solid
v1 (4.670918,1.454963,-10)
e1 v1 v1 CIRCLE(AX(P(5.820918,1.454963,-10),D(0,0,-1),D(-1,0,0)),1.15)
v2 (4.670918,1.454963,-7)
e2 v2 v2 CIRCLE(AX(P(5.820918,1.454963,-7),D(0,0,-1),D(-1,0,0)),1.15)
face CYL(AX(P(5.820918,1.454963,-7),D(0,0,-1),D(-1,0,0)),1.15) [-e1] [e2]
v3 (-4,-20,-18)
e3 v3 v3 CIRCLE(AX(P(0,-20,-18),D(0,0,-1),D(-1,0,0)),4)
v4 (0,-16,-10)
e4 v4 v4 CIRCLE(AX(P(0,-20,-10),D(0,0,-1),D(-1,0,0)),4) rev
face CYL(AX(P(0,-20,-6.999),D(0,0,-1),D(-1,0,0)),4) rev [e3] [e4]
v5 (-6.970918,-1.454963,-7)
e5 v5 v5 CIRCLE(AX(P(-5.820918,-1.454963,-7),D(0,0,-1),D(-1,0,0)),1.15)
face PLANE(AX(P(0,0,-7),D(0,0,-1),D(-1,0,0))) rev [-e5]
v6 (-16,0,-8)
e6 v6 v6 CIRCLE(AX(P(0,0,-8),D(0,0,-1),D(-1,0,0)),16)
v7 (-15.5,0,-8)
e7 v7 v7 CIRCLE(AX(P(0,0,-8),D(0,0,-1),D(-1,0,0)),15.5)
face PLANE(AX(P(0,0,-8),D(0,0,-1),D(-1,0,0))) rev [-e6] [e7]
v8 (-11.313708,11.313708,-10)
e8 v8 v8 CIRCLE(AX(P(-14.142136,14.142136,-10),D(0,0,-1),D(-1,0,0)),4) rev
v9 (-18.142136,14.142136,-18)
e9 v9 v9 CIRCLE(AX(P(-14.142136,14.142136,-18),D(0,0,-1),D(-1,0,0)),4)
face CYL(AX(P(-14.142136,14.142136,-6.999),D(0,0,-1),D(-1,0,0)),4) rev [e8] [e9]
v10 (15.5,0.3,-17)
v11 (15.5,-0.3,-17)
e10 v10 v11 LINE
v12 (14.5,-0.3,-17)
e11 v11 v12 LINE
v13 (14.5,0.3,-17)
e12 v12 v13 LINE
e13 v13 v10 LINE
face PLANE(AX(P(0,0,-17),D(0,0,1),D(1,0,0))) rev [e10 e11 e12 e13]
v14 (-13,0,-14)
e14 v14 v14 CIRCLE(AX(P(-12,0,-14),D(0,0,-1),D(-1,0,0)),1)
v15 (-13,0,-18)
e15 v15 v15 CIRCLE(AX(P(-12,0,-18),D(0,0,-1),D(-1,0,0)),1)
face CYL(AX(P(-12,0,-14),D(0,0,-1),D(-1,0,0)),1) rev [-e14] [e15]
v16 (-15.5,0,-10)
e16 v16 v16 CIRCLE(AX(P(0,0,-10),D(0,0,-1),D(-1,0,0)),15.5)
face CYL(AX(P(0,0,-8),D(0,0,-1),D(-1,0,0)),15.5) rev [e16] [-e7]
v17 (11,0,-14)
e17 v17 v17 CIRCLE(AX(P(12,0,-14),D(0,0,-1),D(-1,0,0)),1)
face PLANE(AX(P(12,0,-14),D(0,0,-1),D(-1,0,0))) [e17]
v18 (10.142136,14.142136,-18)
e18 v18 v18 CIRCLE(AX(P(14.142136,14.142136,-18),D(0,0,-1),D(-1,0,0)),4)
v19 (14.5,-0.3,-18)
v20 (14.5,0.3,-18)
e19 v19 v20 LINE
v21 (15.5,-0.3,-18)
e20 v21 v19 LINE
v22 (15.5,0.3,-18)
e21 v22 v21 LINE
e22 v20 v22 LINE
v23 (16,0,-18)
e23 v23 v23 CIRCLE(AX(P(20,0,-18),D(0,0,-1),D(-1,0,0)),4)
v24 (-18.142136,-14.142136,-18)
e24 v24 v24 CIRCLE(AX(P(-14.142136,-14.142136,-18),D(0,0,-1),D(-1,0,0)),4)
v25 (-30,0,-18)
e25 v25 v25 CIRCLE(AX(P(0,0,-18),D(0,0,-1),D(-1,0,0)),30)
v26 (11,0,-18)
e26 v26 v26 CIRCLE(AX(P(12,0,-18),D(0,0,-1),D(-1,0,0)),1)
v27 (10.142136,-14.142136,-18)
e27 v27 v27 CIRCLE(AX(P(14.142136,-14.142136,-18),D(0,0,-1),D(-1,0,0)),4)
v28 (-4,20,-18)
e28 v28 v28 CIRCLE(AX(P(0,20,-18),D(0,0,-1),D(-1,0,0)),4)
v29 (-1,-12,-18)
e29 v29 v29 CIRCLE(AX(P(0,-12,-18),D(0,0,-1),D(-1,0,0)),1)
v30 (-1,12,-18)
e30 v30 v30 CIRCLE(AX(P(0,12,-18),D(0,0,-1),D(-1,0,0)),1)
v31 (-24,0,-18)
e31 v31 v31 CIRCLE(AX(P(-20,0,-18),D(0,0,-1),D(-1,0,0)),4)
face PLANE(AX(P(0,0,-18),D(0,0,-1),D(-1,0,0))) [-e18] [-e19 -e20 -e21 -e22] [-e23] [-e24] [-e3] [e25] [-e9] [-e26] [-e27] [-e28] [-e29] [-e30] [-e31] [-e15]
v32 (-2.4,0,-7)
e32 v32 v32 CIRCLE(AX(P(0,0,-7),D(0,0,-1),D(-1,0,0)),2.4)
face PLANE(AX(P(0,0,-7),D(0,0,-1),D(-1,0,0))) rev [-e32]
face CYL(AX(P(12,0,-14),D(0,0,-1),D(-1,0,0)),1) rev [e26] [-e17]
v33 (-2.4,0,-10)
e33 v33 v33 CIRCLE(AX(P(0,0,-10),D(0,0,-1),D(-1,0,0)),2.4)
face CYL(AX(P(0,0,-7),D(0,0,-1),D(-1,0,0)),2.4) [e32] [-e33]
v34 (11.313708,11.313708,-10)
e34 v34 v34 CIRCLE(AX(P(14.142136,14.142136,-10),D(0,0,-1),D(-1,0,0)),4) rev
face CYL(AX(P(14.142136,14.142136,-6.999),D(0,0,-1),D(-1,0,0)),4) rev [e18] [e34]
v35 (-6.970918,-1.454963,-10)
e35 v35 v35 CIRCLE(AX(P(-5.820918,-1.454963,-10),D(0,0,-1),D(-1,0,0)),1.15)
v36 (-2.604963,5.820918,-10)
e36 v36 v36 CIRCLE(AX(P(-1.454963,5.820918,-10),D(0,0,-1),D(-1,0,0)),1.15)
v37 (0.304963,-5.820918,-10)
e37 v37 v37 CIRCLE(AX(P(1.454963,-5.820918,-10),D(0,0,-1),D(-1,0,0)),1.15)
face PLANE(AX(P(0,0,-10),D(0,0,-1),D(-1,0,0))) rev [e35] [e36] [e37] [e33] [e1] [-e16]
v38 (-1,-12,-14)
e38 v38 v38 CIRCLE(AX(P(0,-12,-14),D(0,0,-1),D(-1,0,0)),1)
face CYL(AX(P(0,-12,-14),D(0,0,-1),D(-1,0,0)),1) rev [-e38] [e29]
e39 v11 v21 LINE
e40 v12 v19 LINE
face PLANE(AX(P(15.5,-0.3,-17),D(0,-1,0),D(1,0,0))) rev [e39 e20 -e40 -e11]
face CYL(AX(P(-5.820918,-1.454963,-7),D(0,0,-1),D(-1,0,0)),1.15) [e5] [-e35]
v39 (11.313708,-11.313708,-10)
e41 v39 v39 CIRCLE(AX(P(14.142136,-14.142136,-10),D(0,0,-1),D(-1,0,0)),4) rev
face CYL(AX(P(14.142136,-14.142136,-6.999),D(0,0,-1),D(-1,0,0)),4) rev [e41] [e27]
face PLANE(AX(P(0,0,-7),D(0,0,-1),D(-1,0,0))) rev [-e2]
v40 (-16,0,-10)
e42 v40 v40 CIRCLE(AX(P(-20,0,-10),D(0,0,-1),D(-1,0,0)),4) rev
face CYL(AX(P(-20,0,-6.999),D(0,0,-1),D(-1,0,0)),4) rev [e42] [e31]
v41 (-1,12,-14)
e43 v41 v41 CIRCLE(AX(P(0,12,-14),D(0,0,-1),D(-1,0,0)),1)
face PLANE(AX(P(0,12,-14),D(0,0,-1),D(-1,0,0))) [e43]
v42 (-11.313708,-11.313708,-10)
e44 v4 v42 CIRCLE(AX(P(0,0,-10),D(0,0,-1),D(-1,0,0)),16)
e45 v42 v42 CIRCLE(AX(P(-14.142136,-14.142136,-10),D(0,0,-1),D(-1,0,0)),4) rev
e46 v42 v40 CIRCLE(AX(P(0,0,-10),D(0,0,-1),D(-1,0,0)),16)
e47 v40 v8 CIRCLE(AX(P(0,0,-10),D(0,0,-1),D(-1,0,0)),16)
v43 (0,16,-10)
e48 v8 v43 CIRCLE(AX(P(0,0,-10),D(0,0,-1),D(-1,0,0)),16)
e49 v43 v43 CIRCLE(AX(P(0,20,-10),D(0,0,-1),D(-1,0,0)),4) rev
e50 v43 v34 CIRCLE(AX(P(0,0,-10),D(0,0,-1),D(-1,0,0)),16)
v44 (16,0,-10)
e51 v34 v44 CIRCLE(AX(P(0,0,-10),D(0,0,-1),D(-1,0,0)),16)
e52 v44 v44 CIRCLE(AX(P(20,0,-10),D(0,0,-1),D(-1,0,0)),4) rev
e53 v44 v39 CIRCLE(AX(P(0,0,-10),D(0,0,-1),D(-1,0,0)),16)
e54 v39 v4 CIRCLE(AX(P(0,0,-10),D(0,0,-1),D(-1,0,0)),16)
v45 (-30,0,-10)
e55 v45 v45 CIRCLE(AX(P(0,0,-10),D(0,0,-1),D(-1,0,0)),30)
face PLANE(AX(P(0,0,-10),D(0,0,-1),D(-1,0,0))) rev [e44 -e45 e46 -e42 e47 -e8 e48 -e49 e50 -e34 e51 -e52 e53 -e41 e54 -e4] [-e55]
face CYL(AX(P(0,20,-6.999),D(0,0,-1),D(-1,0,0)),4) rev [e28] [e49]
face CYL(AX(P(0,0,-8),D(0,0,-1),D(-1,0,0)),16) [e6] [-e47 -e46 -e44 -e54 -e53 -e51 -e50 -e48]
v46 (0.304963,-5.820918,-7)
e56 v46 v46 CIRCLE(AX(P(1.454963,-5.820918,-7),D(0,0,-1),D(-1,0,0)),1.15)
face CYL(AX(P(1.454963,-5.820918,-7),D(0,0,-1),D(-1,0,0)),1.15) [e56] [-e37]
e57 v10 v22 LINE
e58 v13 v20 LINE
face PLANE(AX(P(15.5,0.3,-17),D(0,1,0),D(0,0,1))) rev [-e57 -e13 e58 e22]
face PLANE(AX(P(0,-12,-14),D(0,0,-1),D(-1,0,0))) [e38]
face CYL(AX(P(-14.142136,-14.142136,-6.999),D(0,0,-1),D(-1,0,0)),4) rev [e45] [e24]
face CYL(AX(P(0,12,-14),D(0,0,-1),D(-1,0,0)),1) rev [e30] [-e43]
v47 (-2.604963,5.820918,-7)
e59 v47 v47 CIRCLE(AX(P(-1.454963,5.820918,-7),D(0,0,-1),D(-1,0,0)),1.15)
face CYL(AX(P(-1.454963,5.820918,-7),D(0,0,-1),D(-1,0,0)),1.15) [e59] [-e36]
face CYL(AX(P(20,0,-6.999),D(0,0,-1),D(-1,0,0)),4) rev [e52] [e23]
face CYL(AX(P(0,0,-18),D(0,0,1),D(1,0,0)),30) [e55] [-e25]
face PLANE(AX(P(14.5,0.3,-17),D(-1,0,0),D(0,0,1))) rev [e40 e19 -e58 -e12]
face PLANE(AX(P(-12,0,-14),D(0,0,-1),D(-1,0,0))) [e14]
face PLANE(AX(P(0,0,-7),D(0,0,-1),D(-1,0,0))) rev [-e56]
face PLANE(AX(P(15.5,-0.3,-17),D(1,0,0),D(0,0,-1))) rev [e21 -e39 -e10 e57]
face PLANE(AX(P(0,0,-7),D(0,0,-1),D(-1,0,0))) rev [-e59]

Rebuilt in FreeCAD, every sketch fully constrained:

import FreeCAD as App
import Part
import Sketcher

V = App.Vector
Q = App.Units.Quantity


def add_polygon(sketch, points):
    """Adds a closed chain of lines whose ends are joined by coincident constraints."""
    first, n = sketch.GeometryCount, len(points)
    for a, b in zip(points, points[1:] + points[:1]):
        sketch.addGeometry(Part.LineSegment(App.Vector(*a, 0), App.Vector(*b, 0)), False)
    for i in range(n):
        sketch.addConstraint(Sketcher.Constraint("Coincident", first + i, 2, first + (i + 1) % n, 1))

doc = App.newDocument("Part")
body = doc.addObject("PartDesign::Body", "Body")

# Sketch on XY plane
sketch1 = doc.addObject("Sketcher::SketchObject", "Sketch")
body.addObject(sketch1)
sketch1.AttachmentSupport = (doc.XY_Plane, [""])
sketch1.MapMode = "FlatFace"
sketch1.AttachmentOffset = App.Placement(V(0, 0, -10), App.Rotation())
sketch1.addGeometry(Part.Circle(V(0, 0, 0), V(0, 0, 1), 2.4), False)
sketch1.addConstraint([
    Sketcher.Constraint("Coincident", 0, 3, -1, 1),
    Sketcher.Constraint("Diameter", 0, Q("4.8 mm")),
])
pad1 = doc.addObject("PartDesign::Pad", "Pad")
body.addObject(pad1)
pad1.Profile = sketch1
pad1.Length = 3
body2 = doc.addObject("PartDesign::Body", "Body001")

# Sketch on XY plane
sketch2 = doc.addObject("Sketcher::SketchObject", "Sketch001")
body2.addObject(sketch2)
sketch2.AttachmentSupport = (doc.getObject("XY_Plane001"), [""])
sketch2.MapMode = "FlatFace"
sketch2.AttachmentOffset = App.Placement(V(0, 0, -10), App.Rotation())
sketch2.addGeometry(Part.Circle(V(-5.820918, -1.454963, 0), V(0, 0, 1), 1.15), False)
sketch2.addConstraint([
    Sketcher.Constraint("Diameter", 0, Q("2.3 mm")),
    Sketcher.Constraint("DistanceX", 0, 3, -1, 1, Q("5.820918 mm")),
    Sketcher.Constraint("DistanceY", 0, 3, -1, 1, Q("1.454963 mm")),
])
pad2 = doc.addObject("PartDesign::Pad", "Pad001")
body2.addObject(pad2)
pad2.Profile = sketch2
pad2.Length = 3
body3 = doc.addObject("PartDesign::Body", "Body002")

# Sketch on XY plane
sketch3 = doc.addObject("Sketcher::SketchObject", "Sketch002")
body3.addObject(sketch3)
sketch3.AttachmentSupport = (doc.getObject("XY_Plane002"), [""])
sketch3.MapMode = "FlatFace"
sketch3.AttachmentOffset = App.Placement(V(0, 0, -10), App.Rotation())
sketch3.addGeometry(Part.Circle(V(1.454963, -5.820918, 0), V(0, 0, 1), 1.15), False)
sketch3.addConstraint([
    Sketcher.Constraint("Diameter", 0, Q("2.3 mm")),
    Sketcher.Constraint("DistanceX", -1, 1, 0, 3, Q("1.454963 mm")),
    Sketcher.Constraint("DistanceY", 0, 3, -1, 1, Q("5.820918 mm")),
])
pad3 = doc.addObject("PartDesign::Pad", "Pad002")
body3.addObject(pad3)
pad3.Profile = sketch3
pad3.Length = 3
body4 = doc.addObject("PartDesign::Body", "Body003")

# Sketch on XY plane
sketch4 = doc.addObject("Sketcher::SketchObject", "Sketch003")
body4.addObject(sketch4)
sketch4.AttachmentSupport = (doc.getObject("XY_Plane003"), [""])
sketch4.MapMode = "FlatFace"
sketch4.AttachmentOffset = App.Placement(V(0, 0, -10), App.Rotation())
sketch4.addGeometry(Part.Circle(V(5.820918, 1.454963, 0), V(0, 0, 1), 1.15), False)
sketch4.addConstraint([
    Sketcher.Constraint("Diameter", 0, Q("2.3 mm")),
    Sketcher.Constraint("DistanceX", -1, 1, 0, 3, Q("5.820918 mm")),
    Sketcher.Constraint("DistanceY", -1, 1, 0, 3, Q("1.454963 mm")),
])
pad4 = doc.addObject("PartDesign::Pad", "Pad003")
body4.addObject(pad4)
pad4.Profile = sketch4
pad4.Length = 3
body5 = doc.addObject("PartDesign::Body", "Body004")

# Sketch on XY plane
sketch5 = doc.addObject("Sketcher::SketchObject", "Sketch004")
body5.addObject(sketch5)
sketch5.AttachmentSupport = (doc.getObject("XY_Plane004"), [""])
sketch5.MapMode = "FlatFace"
sketch5.AttachmentOffset = App.Placement(V(0, 0, -10), App.Rotation())
sketch5.addGeometry(Part.Circle(V(-1.454963, 5.820918, 0), V(0, 0, 1), 1.15), False)
sketch5.addConstraint([
    Sketcher.Constraint("Diameter", 0, Q("2.3 mm")),
    Sketcher.Constraint("DistanceX", 0, 3, -1, 1, Q("1.454963 mm")),
    Sketcher.Constraint("DistanceY", -1, 1, 0, 3, Q("5.820918 mm")),
])
pad5 = doc.addObject("PartDesign::Pad", "Pad004")
body5.addObject(pad5)
pad5.Profile = sketch5
pad5.Length = 3
body6 = doc.addObject("PartDesign::Body", "Body005")

# Sketch on XY plane
sketch6 = doc.addObject("Sketcher::SketchObject", "Sketch005")
body6.addObject(sketch6)
sketch6.AttachmentSupport = (doc.getObject("XY_Plane005"), [""])
sketch6.MapMode = "FlatFace"
sketch6.AttachmentOffset = App.Placement(V(0, 0, -10), App.Rotation())
sketch6.addGeometry([
    Part.Circle(V(0, 0, 0), V(0, 0, 1), 16),
    Part.Circle(V(0, 0, 0), V(0, 0, 1), 15.5),
], False)
sketch6.addConstraint([
    Sketcher.Constraint("Coincident", 0, 3, -1, 1),
    Sketcher.Constraint("Coincident", 1, 3, -1, 1),
    Sketcher.Constraint("Diameter", 0, Q("32 mm")),
    Sketcher.Constraint("Diameter", 1, Q("31 mm")),
])
pad6 = doc.addObject("PartDesign::Pad", "Pad005")
body6.addObject(pad6)
pad6.Profile = sketch6
pad6.Length = 2
body.AllowCompound = True
doc.recompute()

boolean = doc.addObject("PartDesign::Boolean", "Boolean")
body.addObject(boolean)
boolean.Type = "Fuse"
boolean.addObjects([body2])
doc.recompute()

boolean2 = doc.addObject("PartDesign::Boolean", "Boolean001")
body.addObject(boolean2)
boolean2.Type = "Fuse"
boolean2.addObjects([body3])
doc.recompute()

boolean3 = doc.addObject("PartDesign::Boolean", "Boolean002")
body.addObject(boolean3)
boolean3.Type = "Fuse"
boolean3.addObjects([body4])
doc.recompute()

boolean4 = doc.addObject("PartDesign::Boolean", "Boolean003")
body.addObject(boolean4)
boolean4.Type = "Fuse"
boolean4.addObjects([body5])
doc.recompute()

boolean5 = doc.addObject("PartDesign::Boolean", "Boolean004")
body.addObject(boolean5)
boolean5.Type = "Fuse"
boolean5.addObjects([body6])

# Sketch on XY plane
sketch7 = doc.addObject("Sketcher::SketchObject", "Sketch006")
body.addObject(sketch7)
sketch7.AttachmentSupport = (doc.XY_Plane, [""])
sketch7.MapMode = "FlatFace"
sketch7.AttachmentOffset = App.Placement(V(0, 0, -10), App.Rotation())
sketch7.addGeometry(Part.Circle(V(0, 0, 0), V(0, 0, 1), 30), False)
sketch7.addConstraint([
    Sketcher.Constraint("Coincident", 0, 3, -1, 1),
    Sketcher.Constraint("Diameter", 0, Q("60 mm")),
])
pad7 = doc.addObject("PartDesign::Pad", "Pad006")
body.addObject(pad7)
pad7.Profile = sketch7
pad7.Length = 8
pad7.Reversed = True

# Sketch on XY plane
sketch8 = doc.addObject("Sketcher::SketchObject", "Sketch007")
body.addObject(sketch8)
sketch8.AttachmentSupport = (doc.XY_Plane, [""])
sketch8.MapMode = "FlatFace"
sketch8.AttachmentOffset = App.Placement(V(0, 0, -18), App.Rotation())
sketch8.addGeometry(Part.Circle(V(0, -20, 0), V(0, 0, 1), 4), False)
sketch8.addConstraint([
    Sketcher.Constraint("PointOnObject", 0, 3, -2),
    Sketcher.Constraint("Diameter", 0, Q("8 mm")),
    Sketcher.Constraint("DistanceY", 0, 3, -1, 1, Q("20 mm")),
])
pocket1 = doc.addObject("PartDesign::Pocket", "Pocket")
body.addObject(pocket1)
pocket1.Profile = sketch8
pocket1.Type = "UpToFirst"
pocket1.Reversed = True

# Sketch on XY plane
sketch9 = doc.addObject("Sketcher::SketchObject", "Sketch008")
body.addObject(sketch9)
sketch9.AttachmentSupport = (doc.XY_Plane, [""])
sketch9.MapMode = "FlatFace"
sketch9.AttachmentOffset = App.Placement(V(0, 0, -18), App.Rotation())
sketch9.addGeometry(Part.Circle(V(14.142136, -14.142136, 0), V(0, 0, 1), 4), False)
sketch9.addConstraint([
    Sketcher.Constraint("Diameter", 0, Q("8 mm")),
    Sketcher.Constraint("DistanceX", -1, 1, 0, 3, Q("14.142136 mm")),
    Sketcher.Constraint("DistanceY", 0, 3, -1, 1, Q("14.142136 mm")),
])
pocket2 = doc.addObject("PartDesign::Pocket", "Pocket001")
body.addObject(pocket2)
pocket2.Profile = sketch9
pocket2.Type = "UpToFirst"
pocket2.Reversed = True

# Sketch on XY plane
sketch10 = doc.addObject("Sketcher::SketchObject", "Sketch009")
body.addObject(sketch10)
sketch10.AttachmentSupport = (doc.XY_Plane, [""])
sketch10.MapMode = "FlatFace"
sketch10.AttachmentOffset = App.Placement(V(0, 0, -18), App.Rotation())
sketch10.addGeometry(Part.Circle(V(20, 0, 0), V(0, 0, 1), 4), False)
sketch10.addConstraint([
    Sketcher.Constraint("PointOnObject", 0, 3, -1),
    Sketcher.Constraint("Diameter", 0, Q("8 mm")),
    Sketcher.Constraint("DistanceX", -1, 1, 0, 3, Q("20 mm")),
])
pocket3 = doc.addObject("PartDesign::Pocket", "Pocket002")
body.addObject(pocket3)
pocket3.Profile = sketch10
pocket3.Type = "UpToFirst"
pocket3.Reversed = True

# Sketch on XY plane
sketch11 = doc.addObject("Sketcher::SketchObject", "Sketch010")
body.addObject(sketch11)
sketch11.AttachmentSupport = (doc.XY_Plane, [""])
sketch11.MapMode = "FlatFace"
sketch11.AttachmentOffset = App.Placement(V(0, 0, -18), App.Rotation())
sketch11.addGeometry(Part.Circle(V(14.142136, 14.142136, 0), V(0, 0, 1), 4), False)
sketch11.addConstraint([
    Sketcher.Constraint("Diameter", 0, Q("8 mm")),
    Sketcher.Constraint("DistanceX", -1, 1, 0, 3, Q("14.142136 mm")),
    Sketcher.Constraint("DistanceY", -1, 1, 0, 3, Q("14.142136 mm")),
])
pocket4 = doc.addObject("PartDesign::Pocket", "Pocket003")
body.addObject(pocket4)
pocket4.Profile = sketch11
pocket4.Type = "UpToFirst"
pocket4.Reversed = True

# Sketch on XY plane
sketch12 = doc.addObject("Sketcher::SketchObject", "Sketch011")
body.addObject(sketch12)
sketch12.AttachmentSupport = (doc.XY_Plane, [""])
sketch12.MapMode = "FlatFace"
sketch12.AttachmentOffset = App.Placement(V(0, 0, -18), App.Rotation())
sketch12.addGeometry(Part.Circle(V(0, 20, 0), V(0, 0, 1), 4), False)
sketch12.addConstraint([
    Sketcher.Constraint("PointOnObject", 0, 3, -2),
    Sketcher.Constraint("Diameter", 0, Q("8 mm")),
    Sketcher.Constraint("DistanceY", -1, 1, 0, 3, Q("20 mm")),
])
pocket5 = doc.addObject("PartDesign::Pocket", "Pocket004")
body.addObject(pocket5)
pocket5.Profile = sketch12
pocket5.Type = "UpToFirst"
pocket5.Reversed = True

# Sketch on XY plane
sketch13 = doc.addObject("Sketcher::SketchObject", "Sketch012")
body.addObject(sketch13)
sketch13.AttachmentSupport = (doc.XY_Plane, [""])
sketch13.MapMode = "FlatFace"
sketch13.AttachmentOffset = App.Placement(V(0, 0, -18), App.Rotation())
sketch13.addGeometry(Part.Circle(V(-14.142136, 14.142136, 0), V(0, 0, 1), 4), False)
sketch13.addConstraint([
    Sketcher.Constraint("Diameter", 0, Q("8 mm")),
    Sketcher.Constraint("DistanceX", 0, 3, -1, 1, Q("14.142136 mm")),
    Sketcher.Constraint("DistanceY", -1, 1, 0, 3, Q("14.142136 mm")),
])
pocket6 = doc.addObject("PartDesign::Pocket", "Pocket005")
body.addObject(pocket6)
pocket6.Profile = sketch13
pocket6.Type = "UpToFirst"
pocket6.Reversed = True

# Sketch on XY plane
sketch14 = doc.addObject("Sketcher::SketchObject", "Sketch013")
body.addObject(sketch14)
sketch14.AttachmentSupport = (doc.XY_Plane, [""])
sketch14.MapMode = "FlatFace"
sketch14.AttachmentOffset = App.Placement(V(0, 0, -18), App.Rotation())
sketch14.addGeometry(Part.Circle(V(-20, 0, 0), V(0, 0, 1), 4), False)
sketch14.addConstraint([
    Sketcher.Constraint("PointOnObject", 0, 3, -1),
    Sketcher.Constraint("Diameter", 0, Q("8 mm")),
    Sketcher.Constraint("DistanceX", 0, 3, -1, 1, Q("20 mm")),
])
pocket7 = doc.addObject("PartDesign::Pocket", "Pocket006")
body.addObject(pocket7)
pocket7.Profile = sketch14
pocket7.Type = "UpToFirst"
pocket7.Reversed = True

# Sketch on XY plane
sketch15 = doc.addObject("Sketcher::SketchObject", "Sketch014")
body.addObject(sketch15)
sketch15.AttachmentSupport = (doc.XY_Plane, [""])
sketch15.MapMode = "FlatFace"
sketch15.AttachmentOffset = App.Placement(V(0, 0, -18), App.Rotation())
sketch15.addGeometry(Part.Circle(V(-14.142136, -14.142136, 0), V(0, 0, 1), 4), False)
sketch15.addConstraint([
    Sketcher.Constraint("Diameter", 0, Q("8 mm")),
    Sketcher.Constraint("DistanceX", 0, 3, -1, 1, Q("14.142136 mm")),
    Sketcher.Constraint("DistanceY", 0, 3, -1, 1, Q("14.142136 mm")),
])
pocket8 = doc.addObject("PartDesign::Pocket", "Pocket007")
body.addObject(pocket8)
pocket8.Profile = sketch15
pocket8.Type = "UpToFirst"
pocket8.Reversed = True

# Sketch on XY plane
sketch16 = doc.addObject("Sketcher::SketchObject", "Sketch015")
body.addObject(sketch16)
sketch16.AttachmentSupport = (doc.XY_Plane, [""])
sketch16.MapMode = "FlatFace"
sketch16.AttachmentOffset = App.Placement(V(0, 0, -18), App.Rotation())
sketch16.addGeometry([
    Part.Circle(V(-12, 0, 0), V(0, 0, 1), 1),
    Part.Circle(V(0, 12, 0), V(0, 0, 1), 1),
    Part.Circle(V(12, 0, 0), V(0, 0, 1), 1),
    Part.Circle(V(0, -12, 0), V(0, 0, 1), 1),
], False)
sketch16.addConstraint([
    Sketcher.Constraint("Equal", 0, 1),
    Sketcher.Constraint("Equal", 1, 2),
    Sketcher.Constraint("Equal", 2, 3),
    Sketcher.Constraint("Symmetric", 0, 3, 2, 3, -1, 1),
    Sketcher.Constraint("Symmetric", 1, 3, 3, 3, -1, 1),
    Sketcher.Constraint("PointOnObject", 0, 3, -1),
    Sketcher.Constraint("PointOnObject", 1, 3, -2),
    Sketcher.Constraint("Diameter", 0, Q("2 mm")),
    Sketcher.Constraint("DistanceX", 0, 3, -1, 1, Q("12 mm")),
    Sketcher.Constraint("DistanceY", -1, 1, 1, 3, Q("12 mm")),
])
pocket9 = doc.addObject("PartDesign::Pocket", "Pocket008")
body.addObject(pocket9)
pocket9.Profile = sketch16
pocket9.Length = 4
pocket9.Reversed = True

# Sketch on XY plane
sketch17 = doc.addObject("Sketcher::SketchObject", "Sketch016")
body.addObject(sketch17)
sketch17.AttachmentSupport = (doc.XY_Plane, [""])
sketch17.MapMode = "FlatFace"
sketch17.AttachmentOffset = App.Placement(V(0, 0, -18), App.Rotation())
add_polygon(sketch17, [(15.5, 0.3), (15.5, -0.3), (14.5, -0.3), (14.5, 0.3)])  # lines 0-3
sketch17.addConstraint([
    Sketcher.Constraint("Vertical", 0),
    Sketcher.Constraint("Horizontal", 1),
    Sketcher.Constraint("Vertical", 2),
    Sketcher.Constraint("Horizontal", 3),
    Sketcher.Constraint("DistanceX", 1, 2, 1, 1, Q("1 mm")),
    Sketcher.Constraint("DistanceY", 0, 2, 0, 1, Q("0.6 mm")),
    Sketcher.Constraint("DistanceX", -1, 1, 0, 2, Q("15.5 mm")),
    Sketcher.Constraint("DistanceY", 0, 2, -1, 1, Q("0.3 mm")),
])
pocket10 = doc.addObject("PartDesign::Pocket", "Pocket009")
body.addObject(pocket10)
pocket10.Profile = sketch17
pocket10.Length = 1
pocket10.Reversed = True

doc.recompute()
